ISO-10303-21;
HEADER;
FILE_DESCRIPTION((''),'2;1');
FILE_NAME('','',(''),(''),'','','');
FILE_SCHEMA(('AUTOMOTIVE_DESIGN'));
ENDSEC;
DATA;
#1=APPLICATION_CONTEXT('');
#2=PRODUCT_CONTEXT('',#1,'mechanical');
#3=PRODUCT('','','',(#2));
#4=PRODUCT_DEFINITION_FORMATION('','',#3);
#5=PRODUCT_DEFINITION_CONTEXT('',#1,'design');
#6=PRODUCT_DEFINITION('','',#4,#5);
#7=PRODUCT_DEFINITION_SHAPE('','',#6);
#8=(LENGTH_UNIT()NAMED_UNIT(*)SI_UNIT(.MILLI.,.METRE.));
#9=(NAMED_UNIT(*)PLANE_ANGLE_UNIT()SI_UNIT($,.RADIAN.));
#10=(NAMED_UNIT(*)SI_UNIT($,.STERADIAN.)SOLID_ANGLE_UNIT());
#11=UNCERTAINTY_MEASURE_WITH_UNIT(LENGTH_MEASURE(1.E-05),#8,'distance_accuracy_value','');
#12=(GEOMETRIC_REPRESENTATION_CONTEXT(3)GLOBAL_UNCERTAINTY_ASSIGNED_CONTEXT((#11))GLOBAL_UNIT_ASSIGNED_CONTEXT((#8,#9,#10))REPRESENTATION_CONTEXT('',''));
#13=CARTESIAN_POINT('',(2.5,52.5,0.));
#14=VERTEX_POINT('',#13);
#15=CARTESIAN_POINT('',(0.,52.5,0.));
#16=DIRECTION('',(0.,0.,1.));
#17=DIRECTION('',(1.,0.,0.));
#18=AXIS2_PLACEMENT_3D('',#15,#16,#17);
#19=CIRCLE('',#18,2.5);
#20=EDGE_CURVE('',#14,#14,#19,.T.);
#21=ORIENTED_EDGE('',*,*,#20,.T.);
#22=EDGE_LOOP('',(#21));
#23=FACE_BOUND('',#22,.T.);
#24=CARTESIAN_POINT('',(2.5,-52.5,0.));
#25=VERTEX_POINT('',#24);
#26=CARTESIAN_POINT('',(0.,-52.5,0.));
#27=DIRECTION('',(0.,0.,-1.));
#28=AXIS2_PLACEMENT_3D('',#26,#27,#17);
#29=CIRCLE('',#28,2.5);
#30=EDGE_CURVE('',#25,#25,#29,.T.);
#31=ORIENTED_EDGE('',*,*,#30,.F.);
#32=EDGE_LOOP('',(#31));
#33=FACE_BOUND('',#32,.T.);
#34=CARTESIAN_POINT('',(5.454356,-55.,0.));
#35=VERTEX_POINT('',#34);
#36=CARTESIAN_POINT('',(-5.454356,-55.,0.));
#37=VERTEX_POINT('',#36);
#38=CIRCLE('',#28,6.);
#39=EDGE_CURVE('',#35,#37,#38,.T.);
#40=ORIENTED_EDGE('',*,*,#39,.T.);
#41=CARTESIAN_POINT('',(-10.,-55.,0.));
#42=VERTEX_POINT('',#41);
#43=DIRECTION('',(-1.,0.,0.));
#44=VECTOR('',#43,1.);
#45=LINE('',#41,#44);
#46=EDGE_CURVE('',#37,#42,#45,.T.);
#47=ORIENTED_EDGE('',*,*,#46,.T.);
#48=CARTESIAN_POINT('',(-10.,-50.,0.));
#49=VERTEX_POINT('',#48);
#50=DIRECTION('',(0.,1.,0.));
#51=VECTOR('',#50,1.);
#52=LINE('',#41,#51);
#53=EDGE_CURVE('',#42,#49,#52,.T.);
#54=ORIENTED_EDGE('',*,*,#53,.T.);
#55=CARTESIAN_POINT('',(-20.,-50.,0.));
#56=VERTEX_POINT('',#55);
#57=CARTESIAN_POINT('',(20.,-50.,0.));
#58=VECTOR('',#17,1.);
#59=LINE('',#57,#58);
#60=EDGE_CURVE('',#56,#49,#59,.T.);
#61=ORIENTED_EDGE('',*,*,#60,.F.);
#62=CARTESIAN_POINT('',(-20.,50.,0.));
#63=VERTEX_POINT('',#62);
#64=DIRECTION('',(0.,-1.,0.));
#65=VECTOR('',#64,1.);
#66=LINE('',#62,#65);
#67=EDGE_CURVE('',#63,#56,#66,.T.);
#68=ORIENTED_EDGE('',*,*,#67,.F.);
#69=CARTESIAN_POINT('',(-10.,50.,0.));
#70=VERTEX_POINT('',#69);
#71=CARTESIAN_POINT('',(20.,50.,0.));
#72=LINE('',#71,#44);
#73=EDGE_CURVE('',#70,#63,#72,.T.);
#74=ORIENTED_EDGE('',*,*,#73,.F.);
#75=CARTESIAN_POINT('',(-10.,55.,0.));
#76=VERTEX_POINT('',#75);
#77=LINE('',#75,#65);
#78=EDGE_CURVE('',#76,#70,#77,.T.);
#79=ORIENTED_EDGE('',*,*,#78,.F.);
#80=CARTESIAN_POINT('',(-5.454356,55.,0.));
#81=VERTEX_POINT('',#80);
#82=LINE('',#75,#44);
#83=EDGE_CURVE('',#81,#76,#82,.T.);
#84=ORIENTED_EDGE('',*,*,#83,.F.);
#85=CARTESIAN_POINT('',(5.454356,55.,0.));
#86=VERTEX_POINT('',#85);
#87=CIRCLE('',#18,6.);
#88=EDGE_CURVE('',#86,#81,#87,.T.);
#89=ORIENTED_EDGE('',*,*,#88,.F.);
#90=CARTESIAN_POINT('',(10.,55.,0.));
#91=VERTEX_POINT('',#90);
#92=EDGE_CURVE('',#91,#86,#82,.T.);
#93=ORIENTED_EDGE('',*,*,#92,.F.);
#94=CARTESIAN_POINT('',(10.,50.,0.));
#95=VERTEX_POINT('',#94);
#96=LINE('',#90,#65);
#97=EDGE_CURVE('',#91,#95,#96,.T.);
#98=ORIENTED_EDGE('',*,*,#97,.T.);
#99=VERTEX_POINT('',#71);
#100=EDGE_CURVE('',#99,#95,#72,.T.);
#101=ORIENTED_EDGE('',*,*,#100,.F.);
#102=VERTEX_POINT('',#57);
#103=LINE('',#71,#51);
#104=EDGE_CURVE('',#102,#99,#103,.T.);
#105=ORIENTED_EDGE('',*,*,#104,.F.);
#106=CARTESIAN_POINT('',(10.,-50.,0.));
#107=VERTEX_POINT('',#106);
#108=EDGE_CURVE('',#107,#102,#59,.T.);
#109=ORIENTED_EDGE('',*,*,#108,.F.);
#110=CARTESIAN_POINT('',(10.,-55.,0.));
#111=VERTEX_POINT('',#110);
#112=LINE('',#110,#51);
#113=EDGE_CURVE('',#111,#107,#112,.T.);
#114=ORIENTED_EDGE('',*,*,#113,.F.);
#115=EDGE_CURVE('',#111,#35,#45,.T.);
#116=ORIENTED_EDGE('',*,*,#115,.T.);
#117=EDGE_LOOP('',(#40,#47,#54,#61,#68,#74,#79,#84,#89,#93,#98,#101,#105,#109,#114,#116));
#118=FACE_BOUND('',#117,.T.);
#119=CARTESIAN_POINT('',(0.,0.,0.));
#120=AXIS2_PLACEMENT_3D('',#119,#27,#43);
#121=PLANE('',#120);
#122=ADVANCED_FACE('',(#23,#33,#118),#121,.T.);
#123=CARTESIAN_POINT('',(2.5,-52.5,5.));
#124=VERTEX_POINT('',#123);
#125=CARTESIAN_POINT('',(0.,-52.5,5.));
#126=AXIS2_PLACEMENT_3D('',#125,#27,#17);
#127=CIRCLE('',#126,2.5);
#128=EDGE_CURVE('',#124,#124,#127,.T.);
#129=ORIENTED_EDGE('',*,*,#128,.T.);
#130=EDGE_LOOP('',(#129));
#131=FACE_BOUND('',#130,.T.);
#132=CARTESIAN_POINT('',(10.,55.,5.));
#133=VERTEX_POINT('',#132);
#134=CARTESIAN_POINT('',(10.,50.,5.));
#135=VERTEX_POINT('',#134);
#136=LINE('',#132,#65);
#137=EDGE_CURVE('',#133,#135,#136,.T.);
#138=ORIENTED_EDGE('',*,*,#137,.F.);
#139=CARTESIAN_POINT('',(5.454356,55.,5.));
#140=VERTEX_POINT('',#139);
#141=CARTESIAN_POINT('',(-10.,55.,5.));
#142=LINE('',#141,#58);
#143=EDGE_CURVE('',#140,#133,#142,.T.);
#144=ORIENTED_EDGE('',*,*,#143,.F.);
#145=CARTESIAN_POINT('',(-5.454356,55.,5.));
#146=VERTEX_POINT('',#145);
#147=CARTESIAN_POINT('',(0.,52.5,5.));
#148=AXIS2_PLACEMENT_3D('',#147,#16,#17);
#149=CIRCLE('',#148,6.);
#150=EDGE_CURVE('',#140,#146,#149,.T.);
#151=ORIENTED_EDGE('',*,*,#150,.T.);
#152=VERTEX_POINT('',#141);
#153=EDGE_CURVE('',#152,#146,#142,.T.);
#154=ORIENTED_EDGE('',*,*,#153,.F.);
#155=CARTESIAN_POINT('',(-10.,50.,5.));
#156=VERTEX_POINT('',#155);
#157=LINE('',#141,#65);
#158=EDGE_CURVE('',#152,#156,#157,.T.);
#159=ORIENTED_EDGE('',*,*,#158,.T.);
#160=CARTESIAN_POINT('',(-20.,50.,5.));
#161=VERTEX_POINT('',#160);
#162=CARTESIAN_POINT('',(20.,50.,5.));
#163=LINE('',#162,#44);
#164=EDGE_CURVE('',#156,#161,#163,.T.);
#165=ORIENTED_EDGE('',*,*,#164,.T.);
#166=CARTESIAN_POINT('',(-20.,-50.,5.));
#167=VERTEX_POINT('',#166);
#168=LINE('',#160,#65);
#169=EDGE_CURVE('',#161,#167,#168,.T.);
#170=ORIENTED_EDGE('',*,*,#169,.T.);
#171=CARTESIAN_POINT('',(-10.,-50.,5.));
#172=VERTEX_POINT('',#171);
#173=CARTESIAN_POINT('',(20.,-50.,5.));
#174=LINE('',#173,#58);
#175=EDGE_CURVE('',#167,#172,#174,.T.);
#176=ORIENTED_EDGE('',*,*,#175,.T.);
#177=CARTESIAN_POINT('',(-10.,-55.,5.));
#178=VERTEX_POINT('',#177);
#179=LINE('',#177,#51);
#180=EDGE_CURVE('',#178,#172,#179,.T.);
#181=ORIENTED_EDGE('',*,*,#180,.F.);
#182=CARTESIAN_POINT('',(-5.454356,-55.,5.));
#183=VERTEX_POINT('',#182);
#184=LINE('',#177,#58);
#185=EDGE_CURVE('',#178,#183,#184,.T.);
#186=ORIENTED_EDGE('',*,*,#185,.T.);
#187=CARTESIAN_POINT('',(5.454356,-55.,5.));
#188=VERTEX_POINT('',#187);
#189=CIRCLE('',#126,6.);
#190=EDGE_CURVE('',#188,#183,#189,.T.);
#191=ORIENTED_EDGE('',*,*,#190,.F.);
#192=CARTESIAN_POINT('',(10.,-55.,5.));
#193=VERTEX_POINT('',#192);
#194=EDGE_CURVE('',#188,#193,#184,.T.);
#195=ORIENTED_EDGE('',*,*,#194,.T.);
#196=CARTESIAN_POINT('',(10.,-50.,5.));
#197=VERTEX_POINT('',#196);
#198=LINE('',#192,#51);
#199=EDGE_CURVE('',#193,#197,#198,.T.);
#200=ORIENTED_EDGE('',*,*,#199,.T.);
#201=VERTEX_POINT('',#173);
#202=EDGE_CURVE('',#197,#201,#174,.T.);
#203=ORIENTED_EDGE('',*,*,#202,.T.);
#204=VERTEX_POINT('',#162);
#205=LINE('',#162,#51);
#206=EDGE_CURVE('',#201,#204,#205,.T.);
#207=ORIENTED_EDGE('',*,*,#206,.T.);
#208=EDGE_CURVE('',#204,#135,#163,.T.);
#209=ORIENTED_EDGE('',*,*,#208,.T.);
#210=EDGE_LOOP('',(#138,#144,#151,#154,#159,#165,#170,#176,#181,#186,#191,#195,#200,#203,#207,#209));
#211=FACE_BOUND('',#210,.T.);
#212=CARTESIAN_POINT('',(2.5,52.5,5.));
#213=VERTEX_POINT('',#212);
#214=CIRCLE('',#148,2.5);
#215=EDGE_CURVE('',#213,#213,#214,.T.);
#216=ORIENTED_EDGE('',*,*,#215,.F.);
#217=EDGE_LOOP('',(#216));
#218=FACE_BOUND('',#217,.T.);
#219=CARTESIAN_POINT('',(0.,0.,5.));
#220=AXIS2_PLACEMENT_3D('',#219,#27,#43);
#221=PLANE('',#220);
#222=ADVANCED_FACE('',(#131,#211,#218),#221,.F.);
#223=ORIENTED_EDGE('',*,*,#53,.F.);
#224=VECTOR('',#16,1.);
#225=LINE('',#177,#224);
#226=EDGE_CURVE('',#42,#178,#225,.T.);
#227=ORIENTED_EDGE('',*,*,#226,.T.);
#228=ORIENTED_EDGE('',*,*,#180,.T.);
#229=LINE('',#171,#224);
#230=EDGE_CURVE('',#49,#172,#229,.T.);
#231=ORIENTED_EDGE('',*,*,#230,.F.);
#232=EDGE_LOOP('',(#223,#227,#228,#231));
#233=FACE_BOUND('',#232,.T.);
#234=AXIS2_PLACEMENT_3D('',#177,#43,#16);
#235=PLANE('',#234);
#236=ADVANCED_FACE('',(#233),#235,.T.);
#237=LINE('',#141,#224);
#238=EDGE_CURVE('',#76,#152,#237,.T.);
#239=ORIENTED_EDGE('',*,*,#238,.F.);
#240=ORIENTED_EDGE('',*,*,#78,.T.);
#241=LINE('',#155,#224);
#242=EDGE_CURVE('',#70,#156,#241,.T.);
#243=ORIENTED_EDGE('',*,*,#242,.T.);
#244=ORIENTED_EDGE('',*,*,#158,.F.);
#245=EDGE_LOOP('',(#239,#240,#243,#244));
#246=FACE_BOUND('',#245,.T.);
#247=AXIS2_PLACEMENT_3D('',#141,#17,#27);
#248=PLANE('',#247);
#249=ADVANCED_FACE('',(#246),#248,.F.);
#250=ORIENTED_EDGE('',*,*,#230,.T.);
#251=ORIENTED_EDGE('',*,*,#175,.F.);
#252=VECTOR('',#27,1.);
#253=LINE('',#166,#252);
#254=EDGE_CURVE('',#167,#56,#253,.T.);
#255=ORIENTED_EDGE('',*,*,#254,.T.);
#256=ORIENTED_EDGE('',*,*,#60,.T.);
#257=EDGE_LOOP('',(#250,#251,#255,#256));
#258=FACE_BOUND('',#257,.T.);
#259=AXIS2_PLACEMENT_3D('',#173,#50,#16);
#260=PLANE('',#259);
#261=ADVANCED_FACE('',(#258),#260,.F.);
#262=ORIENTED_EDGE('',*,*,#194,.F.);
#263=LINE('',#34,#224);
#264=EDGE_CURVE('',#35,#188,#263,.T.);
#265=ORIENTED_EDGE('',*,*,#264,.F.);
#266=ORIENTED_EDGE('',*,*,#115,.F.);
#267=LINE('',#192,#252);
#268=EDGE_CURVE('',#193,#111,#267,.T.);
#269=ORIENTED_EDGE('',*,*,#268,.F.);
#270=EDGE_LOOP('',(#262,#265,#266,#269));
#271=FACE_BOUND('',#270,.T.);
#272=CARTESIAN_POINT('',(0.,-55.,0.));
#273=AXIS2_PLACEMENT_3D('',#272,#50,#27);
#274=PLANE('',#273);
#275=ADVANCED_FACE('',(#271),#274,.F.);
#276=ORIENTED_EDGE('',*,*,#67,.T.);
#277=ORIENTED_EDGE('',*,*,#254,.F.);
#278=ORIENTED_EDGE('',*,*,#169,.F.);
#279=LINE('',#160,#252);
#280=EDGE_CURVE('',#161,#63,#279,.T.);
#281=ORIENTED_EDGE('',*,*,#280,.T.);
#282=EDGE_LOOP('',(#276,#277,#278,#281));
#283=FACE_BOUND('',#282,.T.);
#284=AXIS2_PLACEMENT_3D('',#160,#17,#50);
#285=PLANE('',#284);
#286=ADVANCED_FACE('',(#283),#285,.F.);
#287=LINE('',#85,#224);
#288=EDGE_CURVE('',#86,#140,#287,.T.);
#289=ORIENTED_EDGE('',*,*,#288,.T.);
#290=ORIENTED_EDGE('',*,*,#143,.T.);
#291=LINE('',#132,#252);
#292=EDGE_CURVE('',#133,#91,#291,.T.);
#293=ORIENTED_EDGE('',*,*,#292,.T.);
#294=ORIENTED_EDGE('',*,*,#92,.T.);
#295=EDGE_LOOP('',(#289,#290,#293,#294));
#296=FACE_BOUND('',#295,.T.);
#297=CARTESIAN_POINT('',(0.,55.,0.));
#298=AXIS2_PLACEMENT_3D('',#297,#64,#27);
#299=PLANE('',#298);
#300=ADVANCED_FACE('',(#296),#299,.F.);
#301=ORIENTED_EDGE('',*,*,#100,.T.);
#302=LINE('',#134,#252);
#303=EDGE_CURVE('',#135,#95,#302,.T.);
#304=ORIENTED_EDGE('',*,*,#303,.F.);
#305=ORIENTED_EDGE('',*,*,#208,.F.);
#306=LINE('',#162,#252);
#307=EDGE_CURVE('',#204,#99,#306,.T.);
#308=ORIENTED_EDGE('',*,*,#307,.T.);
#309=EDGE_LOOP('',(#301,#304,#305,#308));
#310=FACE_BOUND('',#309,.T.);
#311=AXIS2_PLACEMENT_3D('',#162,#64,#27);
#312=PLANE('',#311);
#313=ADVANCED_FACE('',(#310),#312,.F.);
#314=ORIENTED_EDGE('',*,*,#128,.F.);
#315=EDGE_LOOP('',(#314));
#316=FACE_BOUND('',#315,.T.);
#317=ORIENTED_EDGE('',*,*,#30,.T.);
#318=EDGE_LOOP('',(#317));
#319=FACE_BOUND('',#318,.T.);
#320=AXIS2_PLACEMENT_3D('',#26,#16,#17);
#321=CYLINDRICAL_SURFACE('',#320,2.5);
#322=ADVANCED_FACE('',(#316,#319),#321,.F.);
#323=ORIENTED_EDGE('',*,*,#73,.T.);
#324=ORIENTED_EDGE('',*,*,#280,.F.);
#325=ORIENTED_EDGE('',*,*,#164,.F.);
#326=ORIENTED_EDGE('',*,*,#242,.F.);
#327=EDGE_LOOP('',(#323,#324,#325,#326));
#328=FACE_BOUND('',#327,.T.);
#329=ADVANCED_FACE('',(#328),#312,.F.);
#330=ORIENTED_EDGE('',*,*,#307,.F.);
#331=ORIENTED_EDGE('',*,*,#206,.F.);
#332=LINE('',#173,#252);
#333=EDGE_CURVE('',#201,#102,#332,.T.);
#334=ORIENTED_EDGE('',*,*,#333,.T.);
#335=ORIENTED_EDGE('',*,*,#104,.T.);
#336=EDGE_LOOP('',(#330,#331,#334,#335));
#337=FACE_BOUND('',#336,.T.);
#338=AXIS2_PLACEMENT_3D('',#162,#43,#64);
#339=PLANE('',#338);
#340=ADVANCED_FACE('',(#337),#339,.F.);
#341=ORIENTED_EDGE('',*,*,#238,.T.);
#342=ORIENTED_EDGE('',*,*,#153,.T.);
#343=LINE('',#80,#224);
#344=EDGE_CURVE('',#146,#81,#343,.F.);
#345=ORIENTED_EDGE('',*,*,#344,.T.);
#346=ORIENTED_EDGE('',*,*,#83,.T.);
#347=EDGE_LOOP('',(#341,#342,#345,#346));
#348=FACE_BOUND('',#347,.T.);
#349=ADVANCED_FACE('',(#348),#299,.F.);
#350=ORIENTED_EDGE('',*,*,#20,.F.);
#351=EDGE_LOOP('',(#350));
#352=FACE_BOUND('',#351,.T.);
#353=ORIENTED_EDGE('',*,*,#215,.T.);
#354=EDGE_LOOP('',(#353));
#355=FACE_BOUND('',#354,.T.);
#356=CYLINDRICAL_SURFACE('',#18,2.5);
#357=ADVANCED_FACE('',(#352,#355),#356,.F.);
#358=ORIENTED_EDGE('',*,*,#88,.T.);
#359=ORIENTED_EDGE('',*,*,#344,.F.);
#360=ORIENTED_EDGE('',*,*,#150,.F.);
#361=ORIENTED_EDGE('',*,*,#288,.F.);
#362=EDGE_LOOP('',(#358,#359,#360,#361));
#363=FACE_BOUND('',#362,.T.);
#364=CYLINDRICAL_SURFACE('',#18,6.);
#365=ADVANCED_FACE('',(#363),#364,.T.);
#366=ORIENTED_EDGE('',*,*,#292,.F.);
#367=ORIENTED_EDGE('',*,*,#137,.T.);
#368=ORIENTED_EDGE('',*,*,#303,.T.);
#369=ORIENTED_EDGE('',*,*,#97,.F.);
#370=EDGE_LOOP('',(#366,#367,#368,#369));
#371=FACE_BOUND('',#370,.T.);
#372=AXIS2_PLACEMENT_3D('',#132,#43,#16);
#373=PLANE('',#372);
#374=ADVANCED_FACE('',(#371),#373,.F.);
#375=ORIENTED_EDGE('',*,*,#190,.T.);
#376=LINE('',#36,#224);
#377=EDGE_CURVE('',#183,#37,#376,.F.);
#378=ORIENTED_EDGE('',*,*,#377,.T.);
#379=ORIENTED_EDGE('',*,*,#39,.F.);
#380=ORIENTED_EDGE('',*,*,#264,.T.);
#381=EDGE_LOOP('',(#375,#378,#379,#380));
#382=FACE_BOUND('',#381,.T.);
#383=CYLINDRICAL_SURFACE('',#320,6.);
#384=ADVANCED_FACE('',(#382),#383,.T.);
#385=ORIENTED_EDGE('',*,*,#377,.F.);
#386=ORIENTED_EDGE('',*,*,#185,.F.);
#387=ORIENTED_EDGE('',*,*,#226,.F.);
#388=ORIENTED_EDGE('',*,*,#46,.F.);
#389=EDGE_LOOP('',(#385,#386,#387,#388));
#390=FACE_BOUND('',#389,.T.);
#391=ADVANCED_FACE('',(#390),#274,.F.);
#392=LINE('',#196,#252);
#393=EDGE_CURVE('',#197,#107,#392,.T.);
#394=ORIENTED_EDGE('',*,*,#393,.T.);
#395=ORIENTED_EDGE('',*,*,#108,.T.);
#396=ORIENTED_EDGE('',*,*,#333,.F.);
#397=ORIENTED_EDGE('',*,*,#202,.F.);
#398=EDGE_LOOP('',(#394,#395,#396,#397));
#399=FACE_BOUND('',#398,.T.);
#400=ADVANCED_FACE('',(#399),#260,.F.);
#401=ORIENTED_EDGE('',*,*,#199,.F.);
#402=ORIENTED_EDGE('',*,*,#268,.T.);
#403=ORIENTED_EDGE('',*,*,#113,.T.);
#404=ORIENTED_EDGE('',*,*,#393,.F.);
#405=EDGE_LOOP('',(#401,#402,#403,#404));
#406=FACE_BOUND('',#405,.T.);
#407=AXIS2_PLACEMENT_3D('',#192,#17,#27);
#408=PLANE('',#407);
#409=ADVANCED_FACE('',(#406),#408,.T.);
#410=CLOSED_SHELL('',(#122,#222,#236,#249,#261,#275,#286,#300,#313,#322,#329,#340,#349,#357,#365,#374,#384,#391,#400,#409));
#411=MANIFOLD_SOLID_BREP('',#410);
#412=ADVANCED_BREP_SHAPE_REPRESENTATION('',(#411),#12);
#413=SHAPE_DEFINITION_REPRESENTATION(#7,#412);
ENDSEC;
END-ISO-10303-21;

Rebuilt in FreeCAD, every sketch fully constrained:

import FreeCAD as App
import Part
import Sketcher
Q = App.Units.Quantity

doc = App.newDocument("Part")
body = doc.addObject("PartDesign::Body", "Body")

# Sketch on XY plane
sketch1 = body.newObject("Sketcher::SketchObject", "Sketch")
sketch1.AttachmentSupport = (doc.getObject("XY_Plane"), [""])
sketch1.MapMode = "FlatFace"
sketch1.addGeometry([
    Part.LineSegment(App.Vector(-20, 50, 0), App.Vector(-20, -50, 0)),
    Part.LineSegment(App.Vector(-20, -50, 0), App.Vector(20, -50, 0)),
    Part.LineSegment(App.Vector(20, -50, 0), App.Vector(20, 50, 0)),
    Part.LineSegment(App.Vector(20, 50, 0), App.Vector(-20, 50, 0)),
], False)
sketch1.addConstraint([
    Sketcher.Constraint("Coincident", 0, 2, 1, 1),
    Sketcher.Constraint("Coincident", 1, 2, 2, 1),
    Sketcher.Constraint("Coincident", 2, 2, 3, 1),
    Sketcher.Constraint("Coincident", 3, 2, 0, 1),
    Sketcher.Constraint("Vertical", 0),
    Sketcher.Constraint("Horizontal", 1),
    Sketcher.Constraint("Vertical", 2),
    Sketcher.Constraint("Horizontal", 3),
    Sketcher.Constraint("Symmetric", 0, 2, 2, 2, -1, 1),
    Sketcher.Constraint("DistanceX", 1, 1, 1, 2, Q("40 mm")),
    Sketcher.Constraint("DistanceY", 0, 2, 0, 1, Q("100 mm")),
])
pad1 = body.newObject("PartDesign::Pad", "Pad")
pad1.Profile = sketch1
pad1.Length = 5

# Sketch on XZ plane
sketch2 = body.newObject("Sketcher::SketchObject", "Sketch001")
sketch2.AttachmentSupport = (doc.getObject("XZ_Plane"), [""])
sketch2.MapMode = "FlatFace"
sketch2.AttachmentOffset = App.Placement(App.Vector(0, 0, -50), App.Rotation())
sketch2.addGeometry([
    Part.LineSegment(App.Vector(-10, 0, 0), App.Vector(-10, 5, 0)),
    Part.LineSegment(App.Vector(-10, 5, 0), App.Vector(10, 5, 0)),
    Part.LineSegment(App.Vector(10, 5, 0), App.Vector(10, 0, 0)),
    Part.LineSegment(App.Vector(10, 0, 0), App.Vector(-10, 0, 0)),
], False)
sketch2.addConstraint([
    Sketcher.Constraint("Coincident", 0, 2, 1, 1),
    Sketcher.Constraint("Coincident", 1, 2, 2, 1),
    Sketcher.Constraint("Coincident", 2, 2, 3, 1),
    Sketcher.Constraint("Coincident", 3, 2, 0, 1),
    Sketcher.Constraint("Vertical", 0),
    Sketcher.Constraint("Horizontal", 1),
    Sketcher.Constraint("Vertical", 2),
    Sketcher.Constraint("Horizontal", 3),
    Sketcher.Constraint("Symmetric", 2, 2, 3, 2, -1, 1),
    Sketcher.Constraint("DistanceX", 1, 1, 1, 2, Q("20 mm")),
    Sketcher.Constraint("DistanceY", 0, 1, 0, 2, Q("5 mm")),
])
pad2 = body.newObject("PartDesign::Pad", "Pad001")
pad2.Profile = sketch2
pad2.Length = 5
pad2.Reversed = True
doc.recompute()

mirrored = body.newObject("PartDesign::Mirrored", "Mirrored")
mirrored.Originals = [pad2]
mirrored.MirrorPlane = (doc.getObject("XZ_Plane"), [""])
body.Tip = mirrored

# Sketch on XY plane
sketch3 = body.newObject("Sketcher::SketchObject", "Sketch002")
sketch3.AttachmentSupport = (doc.getObject("XY_Plane"), [""])
sketch3.MapMode = "FlatFace"
sketch3.AttachmentOffset = App.Placement(App.Vector(0, 0, 5), App.Rotation())
sketch3.addGeometry(Part.Circle(App.Vector(0, 52, 0), App.Vector(0, 0, 1), 6), False)
sketch3.addConstraint([
    Sketcher.Constraint("PointOnObject", 0, 3, -2),
    Sketcher.Constraint("Diameter", 0, Q("12 mm")),
    Sketcher.Constraint("DistanceY", -1, 1, 0, 3, Q("52.5 mm")),
])
pad3 = body.newObject("PartDesign::Pad", "Pad002")
pad3.Profile = sketch3
pad3.Length = 5
pad3.Reversed = True

# Sketch on XY plane
sketch4 = body.newObject("Sketcher::SketchObject", "Sketch003")
sketch4.AttachmentSupport = (doc.getObject("XY_Plane"), [""])
sketch4.MapMode = "FlatFace"
sketch4.AttachmentOffset = App.Placement(App.Vector(0, 0, 5), App.Rotation())
sketch4.addGeometry(Part.Circle(App.Vector(0, 52.5, 0), App.Vector(0, 0, 1), 2.5), False)
sketch4.addConstraint([
    Sketcher.Constraint("PointOnObject", 0, 3, -2),
    Sketcher.Constraint("Diameter", 0, Q("5 mm")),
    Sketcher.Constraint("DistanceY", -1, 1, 0, 3, Q("52.5 mm")),
])
pocket1 = body.newObject("PartDesign::Pocket", "Pocket")
pocket1.Profile = sketch4
pocket1.Length = 5
doc.recompute()

mirrored2 = body.newObject("PartDesign::Mirrored", "Mirrored001")
mirrored2.Originals = [pad3, pocket1]
mirrored2.MirrorPlane = (doc.getObject("XZ_Plane"), [""])
body.Tip = mirrored2

doc.recompute()
